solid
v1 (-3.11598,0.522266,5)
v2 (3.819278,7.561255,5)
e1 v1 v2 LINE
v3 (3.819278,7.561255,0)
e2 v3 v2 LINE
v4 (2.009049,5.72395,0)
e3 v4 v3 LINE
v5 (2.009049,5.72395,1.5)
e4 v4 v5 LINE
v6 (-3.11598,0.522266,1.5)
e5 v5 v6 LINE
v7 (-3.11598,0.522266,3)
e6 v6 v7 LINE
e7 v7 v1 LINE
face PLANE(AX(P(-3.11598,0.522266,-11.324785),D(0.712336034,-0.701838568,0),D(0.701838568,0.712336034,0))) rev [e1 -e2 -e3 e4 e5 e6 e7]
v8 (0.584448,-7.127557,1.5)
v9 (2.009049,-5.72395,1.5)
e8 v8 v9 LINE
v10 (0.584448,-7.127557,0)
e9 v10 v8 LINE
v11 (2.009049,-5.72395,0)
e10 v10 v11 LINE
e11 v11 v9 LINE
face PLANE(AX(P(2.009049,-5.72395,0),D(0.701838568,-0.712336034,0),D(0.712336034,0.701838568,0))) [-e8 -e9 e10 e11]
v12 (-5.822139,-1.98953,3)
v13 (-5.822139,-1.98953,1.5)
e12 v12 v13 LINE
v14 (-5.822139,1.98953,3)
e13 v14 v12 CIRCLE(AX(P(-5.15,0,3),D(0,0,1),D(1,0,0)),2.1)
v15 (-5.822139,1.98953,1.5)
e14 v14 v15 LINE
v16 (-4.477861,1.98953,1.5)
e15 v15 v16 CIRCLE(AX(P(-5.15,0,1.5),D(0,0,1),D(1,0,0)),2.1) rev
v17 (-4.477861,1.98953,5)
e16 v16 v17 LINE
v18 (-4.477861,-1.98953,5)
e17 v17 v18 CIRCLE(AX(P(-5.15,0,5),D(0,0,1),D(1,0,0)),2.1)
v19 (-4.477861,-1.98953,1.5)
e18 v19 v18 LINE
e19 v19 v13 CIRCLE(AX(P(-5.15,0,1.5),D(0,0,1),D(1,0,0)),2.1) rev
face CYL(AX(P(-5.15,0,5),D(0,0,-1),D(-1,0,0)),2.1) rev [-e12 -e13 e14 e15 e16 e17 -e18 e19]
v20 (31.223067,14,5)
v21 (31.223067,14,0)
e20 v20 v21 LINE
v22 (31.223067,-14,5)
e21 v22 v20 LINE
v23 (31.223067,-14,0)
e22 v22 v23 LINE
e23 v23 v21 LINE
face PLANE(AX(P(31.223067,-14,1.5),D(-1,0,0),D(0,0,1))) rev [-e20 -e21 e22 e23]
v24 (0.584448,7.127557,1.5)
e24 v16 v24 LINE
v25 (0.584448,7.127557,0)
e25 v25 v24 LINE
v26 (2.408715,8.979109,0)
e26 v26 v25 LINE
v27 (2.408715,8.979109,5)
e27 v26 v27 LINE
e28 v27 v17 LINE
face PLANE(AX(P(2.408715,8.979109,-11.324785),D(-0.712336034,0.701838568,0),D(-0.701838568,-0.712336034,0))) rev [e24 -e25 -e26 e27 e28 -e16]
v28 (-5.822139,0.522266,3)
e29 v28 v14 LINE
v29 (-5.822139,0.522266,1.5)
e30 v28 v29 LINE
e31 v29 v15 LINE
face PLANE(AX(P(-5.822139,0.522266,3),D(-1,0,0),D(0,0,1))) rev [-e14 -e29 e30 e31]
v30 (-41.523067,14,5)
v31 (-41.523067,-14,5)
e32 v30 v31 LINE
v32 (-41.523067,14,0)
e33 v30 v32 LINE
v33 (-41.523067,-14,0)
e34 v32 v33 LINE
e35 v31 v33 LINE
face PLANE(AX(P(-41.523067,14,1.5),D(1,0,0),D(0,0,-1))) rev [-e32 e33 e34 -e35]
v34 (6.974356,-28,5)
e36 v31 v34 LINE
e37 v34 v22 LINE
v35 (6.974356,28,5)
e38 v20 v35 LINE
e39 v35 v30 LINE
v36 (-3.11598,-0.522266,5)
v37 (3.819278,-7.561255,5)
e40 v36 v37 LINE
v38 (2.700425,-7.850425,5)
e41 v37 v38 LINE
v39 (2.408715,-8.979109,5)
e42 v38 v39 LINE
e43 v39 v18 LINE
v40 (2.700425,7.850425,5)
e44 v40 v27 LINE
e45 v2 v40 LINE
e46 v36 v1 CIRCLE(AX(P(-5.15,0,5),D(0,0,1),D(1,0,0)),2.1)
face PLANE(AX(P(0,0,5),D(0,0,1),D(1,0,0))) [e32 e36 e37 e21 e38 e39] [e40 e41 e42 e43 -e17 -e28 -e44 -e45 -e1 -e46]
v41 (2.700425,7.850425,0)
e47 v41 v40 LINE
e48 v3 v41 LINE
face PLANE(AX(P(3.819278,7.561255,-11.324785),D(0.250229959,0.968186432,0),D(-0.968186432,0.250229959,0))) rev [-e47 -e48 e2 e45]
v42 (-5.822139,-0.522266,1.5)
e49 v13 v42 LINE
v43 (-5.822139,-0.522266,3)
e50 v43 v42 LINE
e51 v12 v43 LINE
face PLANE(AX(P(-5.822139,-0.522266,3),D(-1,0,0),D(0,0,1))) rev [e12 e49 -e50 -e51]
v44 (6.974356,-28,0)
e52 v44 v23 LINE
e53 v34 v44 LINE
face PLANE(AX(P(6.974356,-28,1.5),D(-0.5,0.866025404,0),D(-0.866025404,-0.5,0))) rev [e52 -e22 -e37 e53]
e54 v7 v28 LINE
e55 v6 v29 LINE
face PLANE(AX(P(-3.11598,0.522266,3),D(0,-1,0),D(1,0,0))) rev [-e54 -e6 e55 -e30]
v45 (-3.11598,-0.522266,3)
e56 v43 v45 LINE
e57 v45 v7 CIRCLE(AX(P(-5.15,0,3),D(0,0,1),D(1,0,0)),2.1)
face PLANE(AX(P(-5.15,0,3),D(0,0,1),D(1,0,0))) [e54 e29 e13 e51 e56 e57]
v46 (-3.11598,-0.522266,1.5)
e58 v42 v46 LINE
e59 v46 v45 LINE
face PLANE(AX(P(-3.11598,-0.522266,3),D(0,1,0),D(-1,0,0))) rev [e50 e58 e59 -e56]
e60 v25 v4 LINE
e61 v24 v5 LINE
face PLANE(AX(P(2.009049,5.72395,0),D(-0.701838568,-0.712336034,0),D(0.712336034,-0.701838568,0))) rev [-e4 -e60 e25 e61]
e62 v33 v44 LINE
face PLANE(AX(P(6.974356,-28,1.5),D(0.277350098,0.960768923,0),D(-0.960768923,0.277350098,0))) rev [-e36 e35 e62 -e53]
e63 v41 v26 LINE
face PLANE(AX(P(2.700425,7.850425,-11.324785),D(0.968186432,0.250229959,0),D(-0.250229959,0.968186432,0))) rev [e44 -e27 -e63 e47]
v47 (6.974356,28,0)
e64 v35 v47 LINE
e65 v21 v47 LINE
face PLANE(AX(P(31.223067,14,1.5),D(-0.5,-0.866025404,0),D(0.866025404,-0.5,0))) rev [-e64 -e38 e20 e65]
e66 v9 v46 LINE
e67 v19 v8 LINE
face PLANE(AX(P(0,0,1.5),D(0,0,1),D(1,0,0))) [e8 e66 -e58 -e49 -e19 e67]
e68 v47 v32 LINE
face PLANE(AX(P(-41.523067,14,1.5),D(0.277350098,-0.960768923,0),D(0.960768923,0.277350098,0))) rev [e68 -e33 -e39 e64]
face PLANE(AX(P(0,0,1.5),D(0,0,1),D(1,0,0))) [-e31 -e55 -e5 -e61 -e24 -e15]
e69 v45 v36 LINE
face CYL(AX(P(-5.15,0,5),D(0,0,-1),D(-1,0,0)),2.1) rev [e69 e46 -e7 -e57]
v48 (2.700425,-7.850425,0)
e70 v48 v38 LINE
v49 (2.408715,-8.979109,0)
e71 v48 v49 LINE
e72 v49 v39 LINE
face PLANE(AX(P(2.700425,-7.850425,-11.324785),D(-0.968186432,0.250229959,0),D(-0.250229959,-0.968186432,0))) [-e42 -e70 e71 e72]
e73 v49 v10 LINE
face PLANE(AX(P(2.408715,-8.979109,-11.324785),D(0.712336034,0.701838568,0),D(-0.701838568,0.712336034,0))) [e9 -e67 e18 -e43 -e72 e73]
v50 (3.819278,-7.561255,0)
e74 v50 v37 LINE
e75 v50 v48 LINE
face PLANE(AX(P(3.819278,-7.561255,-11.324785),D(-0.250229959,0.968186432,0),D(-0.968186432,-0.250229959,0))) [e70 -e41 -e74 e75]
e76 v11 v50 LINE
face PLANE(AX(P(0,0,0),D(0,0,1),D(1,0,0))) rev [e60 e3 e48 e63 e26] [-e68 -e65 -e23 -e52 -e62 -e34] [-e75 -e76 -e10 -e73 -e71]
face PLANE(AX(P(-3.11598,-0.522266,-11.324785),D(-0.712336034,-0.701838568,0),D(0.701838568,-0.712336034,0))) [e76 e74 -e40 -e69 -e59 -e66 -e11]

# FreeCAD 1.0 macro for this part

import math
import FreeCAD as App
import Part
import Sketcher
from FreeCAD import Vector
Q = App.Units.Quantity


def add_polygon(sketch, points):
    """Adds a closed chain of lines whose ends are joined by coincident constraints."""
    first, n = sketch.GeometryCount, len(points)
    for a, b in zip(points, points[1:] + points[:1]):
        sketch.addGeometry(Part.LineSegment(App.Vector(*a, 0), App.Vector(*b, 0)), False)
    for i in range(n):
        sketch.addConstraint(Sketcher.Constraint("Coincident", first + i, 2, first + (i + 1) % n, 1))

doc = App.newDocument("Part")
params = doc.addObject("Spreadsheet::Sheet", "Params")
for row, (alias, value) in enumerate([
    ("sketch1_height", "28 mm"),
    ("sketch1_length", "28 mm"),
    ("pad1_length", "1.5 mm"),
    ("sketch2_diameter", "4.2 mm"),
    ("sketch2_height", "28 mm"),
    ("sketch2_length", "28 mm"),
    ("pad2_length", "3.5 mm"),
    ("pocket1_length", "3.5 mm"),
    ("sketch5_radius", "2.1 mm"),
    ("pad3_length", "1.5 mm"),
], start=1):
    params.set(f"A{row}", alias)
    params.set(f"B{row}", "=" + value)
    params.setAlias(f"B{row}", alias)

body = doc.addObject("PartDesign::Body", "Body")

# Sketch on XY plane
sketch1 = doc.addObject("Sketcher::SketchObject", "Sketch")
body.addObject(sketch1)
sketch1.AttachmentSupport = (doc.XY_Plane, [""])
sketch1.MapMode = "FlatFace"
add_polygon(sketch1, [(-42, 14), (-42, -14), (7, -28), (31, -14), (31, 14), (7, 28)])  # lines 0-5
sketch1.addConstraint([
    Sketcher.Constraint("Vertical", 0),
    Sketcher.Constraint("Vertical", 3),
    Sketcher.Constraint("Symmetric", 1, 2, 4, 2, -1),
    Sketcher.Constraint("Horizontal", 0, 2, 2, 2),
    Sketcher.Constraint("Horizontal", 3, 2, 5, 2),
    Sketcher.Constraint("Equal", 2, 4),
    Sketcher.Constraint("DistanceY", 0, 2, 0, 1, Q("28 mm")),
    Sketcher.Constraint("Angle", 2, Q("30 deg")),
    Sketcher.Constraint("Distance", 2, Q("28 mm")),
    Sketcher.Constraint("Distance", 1, Q("50.477718 mm")),
    Sketcher.Constraint("DistanceX", 0, 2, -1, 1, Q("41.523067 mm")),
])
sketch1.setExpression("Constraints[12]", "Params.sketch1_height")
sketch1.setExpression("Constraints[14]", "Params.sketch1_length")
pad1 = doc.addObject("PartDesign::Pad", "Pad")
body.addObject(pad1)
pad1.Profile = sketch1
pad1.setExpression("Length", "Params.pad1_length")

# Sketch on XY plane
sketch2 = doc.addObject("Sketcher::SketchObject", "Sketch001")
body.addObject(sketch2)
sketch2.AttachmentSupport = (doc.XY_Plane, [""])
sketch2.MapMode = "FlatFace"
sketch2.AttachmentOffset = App.Placement(Vector(0, 0, 1.5), App.Rotation())
add_polygon(sketch2, [(7, 28), (-41.5, 14), (-41.5, -14), (7, -28), (31.2, -14), (31.2, 14)])  # lines 0-5
sketch2.addGeometry(Part.Circle(Vector(-5.2, 0, 0), Vector(0, 0, 1), 2.1), False)  # 6
sketch2.addConstraint([
    Sketcher.Constraint("Vertical", 1),
    Sketcher.Constraint("Vertical", 4),
    Sketcher.Constraint("Symmetric", 2, 2, 5, 2, -1),
    Sketcher.Constraint("PointOnObject", 6, 3, -1),
    Sketcher.Constraint("Horizontal", 1, 2, 3, 2),
    Sketcher.Constraint("Horizontal", 0, 2, 4, 2),
    Sketcher.Constraint("Equal", 0, 2),
    Sketcher.Constraint("Diameter", 6, Q("4.2 mm")),
    Sketcher.Constraint("DistanceY", 1, 2, 1, 1, Q("28 mm")),
    Sketcher.Constraint("Angle", 3, Q("30 deg")),
    Sketcher.Constraint("Distance", 3, Q("28 mm")),
    Sketcher.Constraint("DistanceX", 6, 3, -1, 1, Q("5.15 mm")),
    Sketcher.Constraint("Distance", 0, Q("50.477718 mm")),
    Sketcher.Constraint("DistanceX", 0, 2, -1, 1, Q("41.523067 mm")),
])
sketch2.setExpression("Constraints[13]", "Params.sketch2_diameter")
sketch2.setExpression("Constraints[14]", "Params.sketch2_height")
sketch2.setExpression("Constraints[16]", "Params.sketch2_length")
pad2 = doc.addObject("PartDesign::Pad", "Pad001")
body.addObject(pad2)
pad2.Profile = sketch2
pad2.setExpression("Length", "Params.pad2_length")

# Sketch on XY plane
sketch3 = doc.addObject("Sketcher::SketchObject", "Sketch002")
body.addObject(sketch3)
sketch3.AttachmentSupport = (doc.XY_Plane, [""])
sketch3.MapMode = "FlatFace"
sketch3.AttachmentOffset = App.Placement(Vector(0, 0, 5), App.Rotation())
add_polygon(sketch3, [(-4.5, 2), (-5.8, 2), (-5.8, 0.5), (-3.1, 0.5), (3.8, 7.6), (2.7, 7.9), (2.4, 9)])  # lines 0-6
sketch3.addConstraint([
    Sketcher.Constraint("Horizontal", 0),
    Sketcher.Constraint("Vertical", 1),
    Sketcher.Constraint("Horizontal", 2),
    Sketcher.Constraint("Parallel", 3, 6),
    Sketcher.Constraint("DistanceX", 2, 1, 2, 2, Q("2.706159 mm")),
    Sketcher.Constraint("Distance", 5, Q("1.165771 mm")),
    Sketcher.Constraint("DistanceX", 0, 2, 0, 1, Q("1.344277 mm")),
    Sketcher.Constraint("DistanceY", 1, 2, 1, 1, Q("1.467264 mm")),
    Sketcher.Constraint("DistanceX", 0, 2, -1, 1, Q("5.822139 mm")),
    Sketcher.Constraint("DistanceY", -1, 1, 0, 2, Q("1.98953 mm")),
    Sketcher.Constraint("DistanceX", -1, 1, 3, 2, Q("3.819278 mm")),
    Sketcher.Constraint("DistanceY", -1, 1, 5, 2, Q("8.979109 mm")),
    Sketcher.Constraint("DistanceY", 2, 2, 3, 2, Q("7.038989 mm")),
    Sketcher.Constraint("DistanceY", 3, 2, 4, 2, Q("0.28917 mm")),
])
pocket1 = doc.addObject("PartDesign::Pocket", "Pocket")
body.addObject(pocket1)
pocket1.Profile = sketch3
pocket1.setExpression("Length", "Params.pocket1_length")

# Sketch on XY plane
sketch4 = doc.addObject("Sketcher::SketchObject", "Sketch003")
body.addObject(sketch4)
sketch4.AttachmentSupport = (doc.XY_Plane, [""])
sketch4.MapMode = "FlatFace"
sketch4.AttachmentOffset = App.Placement(Vector(0, 0, 1.5), App.Rotation())
add_polygon(sketch4, [(2.7, 7.9), (2.4, 9), (0.6, 7.1), (2, 5.7), (3.8, 7.6)])  # lines 0-4
sketch4.addConstraint([
    Sketcher.Constraint("Perpendicular", 1, 2),
    Sketcher.Constraint("Perpendicular", 2, 3),
    Sketcher.Constraint("Distance", 2, Q("1.9999 mm")),
    Sketcher.Constraint("DistanceX", 1, 2, 2, 2, Q("1.424601 mm")),
    Sketcher.Constraint("DistanceY", 1, 2, 3, 2, Q("0.433699 mm")),
    Sketcher.Constraint("Distance", 0, Q("1.165771 mm")),
    Sketcher.Constraint("Distance", 1, Q("2.599268 mm")),
    Sketcher.Constraint("DistanceY", -1, 1, 0, 2, Q("8.979109 mm")),
    Sketcher.Constraint("DistanceX", -1, 1, 2, 2, Q("2.009049 mm")),
    Sketcher.Constraint("DistanceY", 3, 2, 4, 2, Q("0.28917 mm")),
])
pocket2 = doc.addObject("PartDesign::Pocket", "Pocket001")
body.addObject(pocket2)
pocket2.Profile = sketch4
pocket2.Type = "ThroughAll"
doc.recompute()

mirrored = doc.addObject("PartDesign::Mirrored", "Mirrored")
body.addObject(mirrored)
mirrored.Originals = [pocket1, pocket2]
mirrored.MirrorPlane = (doc.XZ_Plane, [""])
body.Tip = mirrored

# Sketch on XY plane
sketch5 = doc.addObject("Sketcher::SketchObject", "Sketch004")
body.addObject(sketch5)
sketch5.AttachmentSupport = (doc.XY_Plane, [""])
sketch5.MapMode = "FlatFace"
sketch5.AttachmentOffset = App.Placement(Vector(0, 0, 1.5), App.Rotation())
sketch5.addGeometry([
    Part.LineSegment(Vector(-5.8, 0.5, 0), Vector(-5.8, 2, 0)),  # 0
    Part.ArcOfCircle(Part.Circle(Vector(-5.1, 0, 0), Vector(0, 0, 1), 2.1), math.radians(109), math.radians(251)),  # 1
    Part.LineSegment(Vector(-5.8, -2, 0), Vector(-5.8, -0.5, 0)),  # 2
    Part.LineSegment(Vector(-5.8, -0.5, 0), Vector(-3.1, -0.5, 0)),  # 3
    Part.ArcOfCircle(Part.Circle(Vector(-5.1, 0, 0), Vector(0, 0, 1), 2.1), math.radians(-14), math.radians(14)),  # 4
    Part.LineSegment(Vector(-3.1, 0.5, 0), Vector(-5.8, 0.5, 0)),  # 5
], False)
sketch5.addConstraint([
    Sketcher.Constraint("Coincident", 0, 2, 1, 1),
    Sketcher.Constraint("Coincident", 1, 2, 2, 1),
    Sketcher.Constraint("Coincident", 2, 2, 3, 1),
    Sketcher.Constraint("Coincident", 3, 2, 4, 1),
    Sketcher.Constraint("Coincident", 4, 2, 5, 1),
    Sketcher.Constraint("Coincident", 5, 2, 0, 1),
    Sketcher.Constraint("Vertical", 0),
    Sketcher.Constraint("Vertical", 2),
    Sketcher.Constraint("Horizontal", 3),
    Sketcher.Constraint("Horizontal", 5),
    Sketcher.Constraint("Coincident", 4, 3, 1, 3),
    Sketcher.Constraint("Equal", 1, 4),
    Sketcher.Constraint("Symmetric", 0, 2, 1, 2, -1),
    Sketcher.Constraint("Vertical", 3, 2, 4, 2),
    Sketcher.Constraint("Radius", 1, Q("2.1 mm")),
    Sketcher.Constraint("DistanceX", 1, 3, -1, 1, Q("5.15 mm")),
    Sketcher.Constraint("DistanceX", 3, 1, 3, 2, Q("2.706159 mm")),
    Sketcher.Constraint("DistanceY", 0, 1, 0, 2, Q("1.467264 mm")),
])
sketch5.setExpression("Constraints[14]", "Params.sketch5_radius")
pad3 = doc.addObject("PartDesign::Pad", "Pad002")
body.addObject(pad3)
pad3.Profile = sketch5
pad3.setExpression("Length", "Params.pad3_length")

doc.recompute()
